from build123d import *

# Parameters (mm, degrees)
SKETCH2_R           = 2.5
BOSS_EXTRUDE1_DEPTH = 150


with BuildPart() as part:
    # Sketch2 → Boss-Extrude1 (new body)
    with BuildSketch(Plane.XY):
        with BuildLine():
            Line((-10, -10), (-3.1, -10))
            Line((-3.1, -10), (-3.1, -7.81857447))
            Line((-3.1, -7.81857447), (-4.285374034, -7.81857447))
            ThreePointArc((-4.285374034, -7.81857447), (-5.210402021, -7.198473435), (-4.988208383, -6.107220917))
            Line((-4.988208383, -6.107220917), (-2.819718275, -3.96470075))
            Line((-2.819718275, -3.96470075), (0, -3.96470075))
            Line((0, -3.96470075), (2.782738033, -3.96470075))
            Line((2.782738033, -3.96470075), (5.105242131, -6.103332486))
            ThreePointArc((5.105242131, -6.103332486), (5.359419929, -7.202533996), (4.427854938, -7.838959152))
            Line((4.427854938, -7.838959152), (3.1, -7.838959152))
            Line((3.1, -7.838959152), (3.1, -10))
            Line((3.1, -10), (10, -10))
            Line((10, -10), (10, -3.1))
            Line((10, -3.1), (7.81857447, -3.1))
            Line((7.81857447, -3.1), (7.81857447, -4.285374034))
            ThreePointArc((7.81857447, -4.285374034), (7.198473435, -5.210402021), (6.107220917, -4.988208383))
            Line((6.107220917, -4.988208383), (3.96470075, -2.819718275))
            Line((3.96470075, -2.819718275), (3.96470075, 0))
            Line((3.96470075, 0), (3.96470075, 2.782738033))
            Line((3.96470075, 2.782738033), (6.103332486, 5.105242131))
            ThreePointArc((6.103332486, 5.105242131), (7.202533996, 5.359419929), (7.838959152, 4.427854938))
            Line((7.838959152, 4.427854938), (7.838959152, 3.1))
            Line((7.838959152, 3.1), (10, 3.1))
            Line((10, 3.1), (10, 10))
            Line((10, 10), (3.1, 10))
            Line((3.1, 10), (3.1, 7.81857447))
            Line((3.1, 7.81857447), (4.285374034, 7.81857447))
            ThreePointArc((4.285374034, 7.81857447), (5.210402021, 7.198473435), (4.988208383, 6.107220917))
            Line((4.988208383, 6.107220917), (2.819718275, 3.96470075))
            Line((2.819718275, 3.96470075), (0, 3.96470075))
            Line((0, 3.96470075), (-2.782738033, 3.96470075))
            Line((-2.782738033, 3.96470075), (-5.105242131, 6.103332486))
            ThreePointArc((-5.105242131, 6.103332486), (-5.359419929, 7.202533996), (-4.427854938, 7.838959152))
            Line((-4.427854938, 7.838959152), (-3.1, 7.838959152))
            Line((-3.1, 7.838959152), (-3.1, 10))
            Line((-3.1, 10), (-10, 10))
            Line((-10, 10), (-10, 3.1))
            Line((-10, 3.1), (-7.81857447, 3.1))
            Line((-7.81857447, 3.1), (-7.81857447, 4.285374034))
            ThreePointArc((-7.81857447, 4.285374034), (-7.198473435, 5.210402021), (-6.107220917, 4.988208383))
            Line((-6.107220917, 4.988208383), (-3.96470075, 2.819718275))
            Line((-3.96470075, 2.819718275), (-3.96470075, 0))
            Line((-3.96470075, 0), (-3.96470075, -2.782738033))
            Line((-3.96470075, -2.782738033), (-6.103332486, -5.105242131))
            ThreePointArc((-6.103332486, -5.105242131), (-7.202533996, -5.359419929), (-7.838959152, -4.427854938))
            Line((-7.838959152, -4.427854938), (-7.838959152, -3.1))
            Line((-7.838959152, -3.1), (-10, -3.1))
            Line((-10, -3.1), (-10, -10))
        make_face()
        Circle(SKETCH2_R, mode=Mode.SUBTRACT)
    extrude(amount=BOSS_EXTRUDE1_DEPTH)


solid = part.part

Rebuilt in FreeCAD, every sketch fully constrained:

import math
import FreeCAD as App
import Part
import Sketcher
from FreeCAD import Vector

doc = App.newDocument("Part")
body = doc.addObject("PartDesign::Body", "Body")

sketch1 = doc.addObject("Sketcher::SketchObject", "Sketch")
body.addObject(sketch1)
sketch1.AttachmentSupport = (doc.XY_Plane, [""])
sketch1.MapMode = "FlatFace"
sketch1.addGeometry([
    Part.LineSegment(Vector(-10, -10, 0), Vector(-3.1, -10, 0)),
    Part.LineSegment(Vector(-3.1, -10, 0), Vector(-3.1, -7.8, 0)),
    Part.LineSegment(Vector(-3.1, -7.8, 0), Vector(-4.3, -7.8, 0)),
    Part.ArcOfCircle(Part.Circle(Vector(-4.3, -6.8, 0), Vector(0, 0, 1), 1), math.radians(135), math.radians(270)),
    Part.LineSegment(Vector(-5, -6.1, 0), Vector(-2.8, -4, 0)),
    Part.LineSegment(Vector(-2.8, -4, 0), Vector(2.8, -4, 0)),
    Part.LineSegment(Vector(2.8, -4, 0), Vector(5.1, -6.1, 0)),
    Part.ArcOfCircle(Part.Circle(Vector(4.4, -6.8, 0), Vector(0, 0, 1), 1), math.radians(-90), math.radians(47)),
    Part.LineSegment(Vector(4.4, -7.8, 0), Vector(3.1, -7.8, 0)),
    Part.LineSegment(Vector(3.1, -7.8, 0), Vector(3.1, -10, 0)),
    Part.LineSegment(Vector(3.1, -10, 0), Vector(10, -10, 0)),
    Part.LineSegment(Vector(10, -10, 0), Vector(10, -3.1, 0)),
    Part.LineSegment(Vector(10, -3.1, 0), Vector(7.8, -3.1, 0)),
    Part.LineSegment(Vector(7.8, -3.1, 0), Vector(7.8, -4.3, 0)),
    Part.ArcOfCircle(Part.Circle(Vector(6.8, -4.3, 0), Vector(0, 0, 1), 1), math.radians(-135), math.radians(0)),
    Part.LineSegment(Vector(6.1, -5, 0), Vector(4, -2.8, 0)),
    Part.LineSegment(Vector(4, -2.8, 0), Vector(4, 2.8, 0)),
    Part.LineSegment(Vector(4, 2.8, 0), Vector(6.1, 5.1, 0)),
    Part.ArcOfCircle(Part.Circle(Vector(6.8, 4.4, 0), Vector(0, 0, 1), 1), math.radians(0), math.radians(137)),
    Part.LineSegment(Vector(7.8, 4.4, 0), Vector(7.8, 3.1, 0)),
    Part.LineSegment(Vector(7.8, 3.1, 0), Vector(10, 3.1, 0)),
    Part.LineSegment(Vector(10, 3.1, 0), Vector(10, 10, 0)),
    Part.LineSegment(Vector(10, 10, 0), Vector(3.1, 10, 0)),
    Part.LineSegment(Vector(3.1, 10, 0), Vector(3.1, 7.8, 0)),
    Part.LineSegment(Vector(3.1, 7.8, 0), Vector(4.3, 7.8, 0)),
    Part.ArcOfCircle(Part.Circle(Vector(4.3, 6.8, 0), Vector(0, 0, 1), 1), math.radians(-45), math.radians(90)),
    Part.LineSegment(Vector(5, 6.1, 0), Vector(2.8, 4, 0)),
    Part.LineSegment(Vector(2.8, 4, 0), Vector(-2.8, 4, 0)),
    Part.LineSegment(Vector(-2.8, 4, 0), Vector(-5.1, 6.1, 0)),
    Part.ArcOfCircle(Part.Circle(Vector(-4.4, 6.8, 0), Vector(0, 0, 1), 1), math.radians(90), math.radians(227)),
    Part.LineSegment(Vector(-4.4, 7.8, 0), Vector(-3.1, 7.8, 0)),
    Part.LineSegment(Vector(-3.1, 7.8, 0), Vector(-3.1, 10, 0)),
    Part.LineSegment(Vector(-3.1, 10, 0), Vector(-10, 10, 0)),
    Part.LineSegment(Vector(-10, 10, 0), Vector(-10, 3.1, 0)),
    Part.LineSegment(Vector(-10, 3.1, 0), Vector(-7.8, 3.1, 0)),
    Part.LineSegment(Vector(-7.8, 3.1, 0), Vector(-7.8, 4.3, 0)),
    Part.ArcOfCircle(Part.Circle(Vector(-6.8, 4.3, 0), Vector(0, 0, 1), 1), math.radians(45), math.radians(180)),
    Part.LineSegment(Vector(-6.1, 5, 0), Vector(-4, 2.8, 0)),
    Part.LineSegment(Vector(-4, 2.8, 0), Vector(-4, -2.8, 0)),
    Part.LineSegment(Vector(-4, -2.8, 0), Vector(-6.1, -5.1, 0)),
    Part.ArcOfCircle(Part.Circle(Vector(-6.8, -4.4, 0), Vector(0, 0, 1), 1), math.radians(-180), math.radians(-43)),
    Part.LineSegment(Vector(-7.8, -4.4, 0), Vector(-7.8, -3.1, 0)),
    Part.LineSegment(Vector(-7.8, -3.1, 0), Vector(-10, -3.1, 0)),
    Part.LineSegment(Vector(-10, -3.1, 0), Vector(-10, -10, 0)),
    Part.Circle(Vector(0, 0, 0), Vector(0, 0, 1), 2.5),
], False)
sketch1.addConstraint([
    Sketcher.Constraint("Coincident", 0, 2, 1, 1),
    Sketcher.Constraint("Coincident", 1, 2, 2, 1),
    Sketcher.Constraint("Tangent", 2, 2, 3, 2),
    Sketcher.Constraint("Tangent", 3, 1, 4, 1),
    Sketcher.Constraint("Coincident", 4, 2, 5, 1),
    Sketcher.Constraint("Coincident", 5, 2, 6, 1),
    Sketcher.Constraint("Tangent", 6, 2, 7, 2),
    Sketcher.Constraint("Tangent", 7, 1, 8, 1),
    Sketcher.Constraint("Coincident", 8, 2, 9, 1),
    Sketcher.Constraint("Coincident", 9, 2, 10, 1),
    Sketcher.Constraint("Coincident", 10, 2, 11, 1),
    Sketcher.Constraint("Coincident", 11, 2, 12, 1),
    Sketcher.Constraint("Coincident", 12, 2, 13, 1),
    Sketcher.Constraint("Tangent", 13, 2, 14, 2),
    Sketcher.Constraint("Tangent", 14, 1, 15, 1),
    Sketcher.Constraint("Coincident", 15, 2, 16, 1),
    Sketcher.Constraint("Coincident", 16, 2, 17, 1),
    Sketcher.Constraint("Tangent", 17, 2, 18, 2),
    Sketcher.Constraint("Tangent", 18, 1, 19, 1),
    Sketcher.Constraint("Coincident", 19, 2, 20, 1),
    Sketcher.Constraint("Coincident", 20, 2, 21, 1),
    Sketcher.Constraint("Coincident", 21, 2, 22, 1),
    Sketcher.Constraint("Coincident", 22, 2, 23, 1),
    Sketcher.Constraint("Coincident", 23, 2, 24, 1),
    Sketcher.Constraint("Tangent", 24, 2, 25, 2),
    Sketcher.Constraint("Tangent", 25, 1, 26, 1),
    Sketcher.Constraint("Coincident", 26, 2, 27, 1),
    Sketcher.Constraint("Coincident", 27, 2, 28, 1),
    Sketcher.Constraint("Tangent", 28, 2, 29, 2),
    Sketcher.Constraint("Tangent", 29, 1, 30, 1),
    Sketcher.Constraint("Coincident", 30, 2, 31, 1),
    Sketcher.Constraint("Coincident", 31, 2, 32, 1),
    Sketcher.Constraint("Coincident", 32, 2, 33, 1),
    Sketcher.Constraint("Coincident", 33, 2, 34, 1),
    Sketcher.Constraint("Coincident", 34, 2, 35, 1),
    Sketcher.Constraint("Tangent", 35, 2, 36, 2),
    Sketcher.Constraint("Tangent", 36, 1, 37, 1),
    Sketcher.Constraint("Coincident", 37, 2, 38, 1),
    Sketcher.Constraint("Coincident", 38, 2, 39, 1),
    Sketcher.Constraint("Tangent", 39, 2, 40, 2),
    Sketcher.Constraint("Tangent", 40, 1, 41, 1),
    Sketcher.Constraint("Coincident", 41, 2, 42, 1),
    Sketcher.Constraint("Coincident", 42, 2, 43, 1),
    Sketcher.Constraint("Coincident", 43, 2, 0, 1),
    Sketcher.Constraint("Horizontal", 0),
    Sketcher.Constraint("Vertical", 1),
    Sketcher.Constraint("Horizontal", 2),
    Sketcher.Constraint("Horizontal", 5),
    Sketcher.Constraint("Horizontal", 8),
    Sketcher.Constraint("Vertical", 9),
    Sketcher.Constraint("Horizontal", 10),
    Sketcher.Constraint("Vertical", 11),
    Sketcher.Constraint("Horizontal", 12),
    Sketcher.Constraint("Vertical", 13),
    Sketcher.Constraint("Vertical", 16),
    Sketcher.Constraint("Vertical", 19),
    Sketcher.Constraint("Horizontal", 20),
    Sketcher.Constraint("Vertical", 21),
    Sketcher.Constraint("Horizontal", 22),
    Sketcher.Constraint("Vertical", 23),
    Sketcher.Constraint("Horizontal", 24),
    Sketcher.Constraint("Horizontal", 27),
    Sketcher.Constraint("Horizontal", 30),
    Sketcher.Constraint("Vertical", 31),
    Sketcher.Constraint("Horizontal", 32),
    Sketcher.Constraint("Vertical", 33),
    Sketcher.Constraint("Horizontal", 34),
    Sketcher.Constraint("Vertical", 35),
    Sketcher.Constraint("Vertical", 38),
    Sketcher.Constraint("Vertical", 41),
    Sketcher.Constraint("Horizontal", 42),
    Sketcher.Constraint("Vertical", 43),
    Sketcher.Constraint("Coincident", 44, 3, -1, 1),
    Sketcher.Constraint("Equal", 3, 7),
    Sketcher.Constraint("Equal", 7, 14),
    Sketcher.Constraint("Equal", 14, 18),
    Sketcher.Constraint("Equal", 18, 25),
    Sketcher.Constraint("Equal", 25, 29),
    Sketcher.Constraint("Equal", 29, 36),
    Sketcher.Constraint("Equal", 36, 40),
    Sketcher.Constraint("Symmetric", 3, 3, 25, 3, -1, 1),
    Sketcher.Constraint("Symmetric", 7, 3, 29, 3, -1, 1),
    Sketcher.Constraint("Symmetric", 14, 3, 36, 3, -1, 1),
    Sketcher.Constraint("Symmetric", 18, 3, 40, 3, -1, 1),
    Sketcher.Constraint("Symmetric", 0, 2, 22, 2, -1, 1),
    Sketcher.Constraint("Symmetric", 4, 2, 26, 2, -1, 1),
    Sketcher.Constraint("Symmetric", 9, 2, 31, 2, -1, 1),
    Sketcher.Constraint("Symmetric", 11, 2, 33, 2, -1, 1),
    Sketcher.Constraint("Symmetric", 15, 2, 37, 2, -1, 1),
    Sketcher.Constraint("Symmetric", 20, 2, 42, 2, -1, 1),
    Sketcher.Constraint("Symmetric", 0, 2, 9, 2, -2),
    Sketcher.Constraint("Symmetric", 20, 2, 33, 2, -2),
    Sketcher.Constraint("Perpendicular", 4, 15),
    Sketcher.Constraint("Perpendicular", 6, 17),
    Sketcher.Constraint("Perpendicular", 17, 28),
    Sketcher.Constraint("Perpendicular", 28, 39),
    Sketcher.Constraint("Equal", 34, 1),
    Sketcher.Constraint("Equal", 42, 9),
    Sketcher.Constraint("Equal", 32, 11),
    Sketcher.Constraint("Equal", 24, 13),
    Sketcher.Constraint("Equal", 27, 16),
    Sketcher.Constraint("Equal", 30, 19),
    Sketcher.Constraint("Equal", 4, 15),
    Sketcher.Constraint("Diameter", 44, 5.0),
    Sketcher.Constraint("Radius", 3, 1.0),
    Sketcher.Constraint("DistanceX", 0, 1, 0, 2, 6.9),
    Sketcher.Constraint("DistanceY", 0, 2, -1, 1, 10.0),
    Sketcher.Constraint("Distance", 4, 3.0484),
    Sketcher.Constraint("DistanceX", 20, 1, 20, 2, 2.161041),
    Sketcher.Constraint("DistanceY", 4, 2, -1, 1, 3.964701),
    Sketcher.Constraint("DistanceY", 3, 3, 14, 3, 2.5332),
    Sketcher.Constraint("DistanceX", 2, 2, 2, 1, 1.185374),
    Sketcher.Constraint("DistanceX", 5, 1, 5, 2, 5.602456),
    Sketcher.Constraint("DistanceX", 8, 2, 8, 1, 1.327855),
])
pad1 = doc.addObject("PartDesign::Pad", "Pad")
body.addObject(pad1)
pad1.Profile = sketch1
pad1.Length = 150

doc.recompute()
